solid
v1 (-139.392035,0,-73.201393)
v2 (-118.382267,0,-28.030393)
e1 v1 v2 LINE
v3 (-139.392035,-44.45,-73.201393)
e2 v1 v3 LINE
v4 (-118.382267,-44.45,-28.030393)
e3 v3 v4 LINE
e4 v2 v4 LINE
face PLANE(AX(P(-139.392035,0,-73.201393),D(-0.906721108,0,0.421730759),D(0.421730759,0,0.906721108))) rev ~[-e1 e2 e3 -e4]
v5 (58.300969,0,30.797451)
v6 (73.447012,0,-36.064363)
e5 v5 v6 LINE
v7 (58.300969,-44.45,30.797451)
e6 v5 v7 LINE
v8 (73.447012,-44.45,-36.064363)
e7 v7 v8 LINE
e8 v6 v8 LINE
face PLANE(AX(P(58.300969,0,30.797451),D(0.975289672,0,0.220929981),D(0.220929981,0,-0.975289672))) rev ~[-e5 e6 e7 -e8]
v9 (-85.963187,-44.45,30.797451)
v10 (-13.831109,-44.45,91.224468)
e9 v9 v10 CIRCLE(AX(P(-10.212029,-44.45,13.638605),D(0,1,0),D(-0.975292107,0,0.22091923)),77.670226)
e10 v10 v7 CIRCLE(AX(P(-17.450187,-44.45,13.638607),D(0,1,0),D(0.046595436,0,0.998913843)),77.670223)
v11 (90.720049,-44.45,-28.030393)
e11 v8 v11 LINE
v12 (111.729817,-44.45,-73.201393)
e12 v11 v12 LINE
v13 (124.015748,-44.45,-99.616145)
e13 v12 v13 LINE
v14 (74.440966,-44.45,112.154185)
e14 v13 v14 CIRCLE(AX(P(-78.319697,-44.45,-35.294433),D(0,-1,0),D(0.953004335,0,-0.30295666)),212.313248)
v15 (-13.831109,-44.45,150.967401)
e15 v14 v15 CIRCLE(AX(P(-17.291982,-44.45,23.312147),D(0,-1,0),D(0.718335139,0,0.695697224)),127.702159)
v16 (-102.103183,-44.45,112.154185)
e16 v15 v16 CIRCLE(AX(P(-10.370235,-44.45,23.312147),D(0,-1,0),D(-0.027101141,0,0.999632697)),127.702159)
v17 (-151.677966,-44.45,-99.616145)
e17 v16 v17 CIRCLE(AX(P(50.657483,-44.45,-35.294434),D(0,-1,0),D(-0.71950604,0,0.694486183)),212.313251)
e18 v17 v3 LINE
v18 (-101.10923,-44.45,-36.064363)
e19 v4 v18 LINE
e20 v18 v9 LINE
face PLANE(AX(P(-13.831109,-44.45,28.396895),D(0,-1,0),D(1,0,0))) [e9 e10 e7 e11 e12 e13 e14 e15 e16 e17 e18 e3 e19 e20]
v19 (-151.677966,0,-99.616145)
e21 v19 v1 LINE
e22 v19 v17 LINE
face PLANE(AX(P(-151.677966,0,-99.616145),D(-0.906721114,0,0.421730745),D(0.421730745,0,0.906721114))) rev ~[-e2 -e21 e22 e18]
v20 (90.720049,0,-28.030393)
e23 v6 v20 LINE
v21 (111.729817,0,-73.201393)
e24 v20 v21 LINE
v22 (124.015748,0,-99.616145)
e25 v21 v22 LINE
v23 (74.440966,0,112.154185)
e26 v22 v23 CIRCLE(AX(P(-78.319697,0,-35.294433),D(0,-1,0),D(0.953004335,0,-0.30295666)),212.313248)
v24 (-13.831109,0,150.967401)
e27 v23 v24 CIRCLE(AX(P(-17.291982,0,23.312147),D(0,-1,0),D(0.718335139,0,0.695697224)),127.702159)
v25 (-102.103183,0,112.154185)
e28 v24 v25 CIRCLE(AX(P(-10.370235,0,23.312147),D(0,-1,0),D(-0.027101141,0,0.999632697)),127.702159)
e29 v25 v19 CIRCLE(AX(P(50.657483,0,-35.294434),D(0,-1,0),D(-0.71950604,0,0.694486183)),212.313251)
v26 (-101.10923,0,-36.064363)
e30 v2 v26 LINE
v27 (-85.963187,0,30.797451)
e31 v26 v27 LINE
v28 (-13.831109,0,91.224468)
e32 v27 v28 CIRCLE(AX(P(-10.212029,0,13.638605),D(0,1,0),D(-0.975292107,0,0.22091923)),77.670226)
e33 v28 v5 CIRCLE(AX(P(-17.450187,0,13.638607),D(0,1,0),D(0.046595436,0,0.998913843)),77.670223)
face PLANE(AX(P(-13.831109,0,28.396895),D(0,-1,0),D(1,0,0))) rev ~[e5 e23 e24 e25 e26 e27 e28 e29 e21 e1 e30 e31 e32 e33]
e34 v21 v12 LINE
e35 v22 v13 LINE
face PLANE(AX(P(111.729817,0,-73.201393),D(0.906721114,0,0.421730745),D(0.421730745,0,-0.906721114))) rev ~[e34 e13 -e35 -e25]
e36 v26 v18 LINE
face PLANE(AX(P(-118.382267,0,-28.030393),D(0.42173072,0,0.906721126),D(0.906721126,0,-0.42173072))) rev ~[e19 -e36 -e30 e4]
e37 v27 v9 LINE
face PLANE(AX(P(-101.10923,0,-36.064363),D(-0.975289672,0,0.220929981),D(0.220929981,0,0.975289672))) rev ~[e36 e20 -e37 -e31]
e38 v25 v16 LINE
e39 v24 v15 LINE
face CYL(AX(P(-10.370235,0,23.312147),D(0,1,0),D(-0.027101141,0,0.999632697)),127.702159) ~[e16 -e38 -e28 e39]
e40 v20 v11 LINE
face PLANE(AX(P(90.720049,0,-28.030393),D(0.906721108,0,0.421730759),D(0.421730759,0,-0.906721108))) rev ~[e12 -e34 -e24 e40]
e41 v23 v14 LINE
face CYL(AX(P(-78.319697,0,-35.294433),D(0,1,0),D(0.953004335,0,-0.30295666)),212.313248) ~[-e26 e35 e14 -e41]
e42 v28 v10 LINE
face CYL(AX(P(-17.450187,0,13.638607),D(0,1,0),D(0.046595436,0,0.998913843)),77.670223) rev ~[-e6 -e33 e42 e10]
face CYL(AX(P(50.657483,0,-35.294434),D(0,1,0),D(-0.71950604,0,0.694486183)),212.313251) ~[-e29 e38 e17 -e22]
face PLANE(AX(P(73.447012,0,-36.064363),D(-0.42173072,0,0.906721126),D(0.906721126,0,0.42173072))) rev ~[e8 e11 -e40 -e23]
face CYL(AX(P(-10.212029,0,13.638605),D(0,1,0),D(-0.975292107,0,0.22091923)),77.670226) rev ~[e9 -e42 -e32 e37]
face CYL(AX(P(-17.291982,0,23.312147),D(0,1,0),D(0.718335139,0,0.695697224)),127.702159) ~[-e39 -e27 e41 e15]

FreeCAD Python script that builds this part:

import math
import FreeCAD as App
import Part
import Sketcher
from FreeCAD import Vector
Q = App.Units.Quantity

doc = App.newDocument("Part")
body = doc.addObject("PartDesign::Body", "Body")

# Sketch on XZ plane
sketch1 = doc.addObject("Sketcher::SketchObject", "Sketch")
body.addObject(sketch1)
sketch1.AttachmentSupport = (doc.XZ_Plane, [""])
sketch1.MapMode = "FlatFace"
sketch1.addGeometry([
    Part.LineSegment(Vector(-151.677966, -99.616145, 0), Vector(-139.392035, -73.201393, 0)),  # 0
    Part.LineSegment(Vector(-139.392035, -73.201393, 0), Vector(-118.382267, -28.030393, 0)),  # 1
    Part.LineSegment(Vector(-118.382267, -28.030393, 0), Vector(-101.10923, -36.064363, 0)),  # 2
    Part.LineSegment(Vector(-101.10923, -36.064363, 0), Vector(-85.963187, 30.797451, 0)),  # 3
    Part.ArcOfCircle(Part.Circle(Vector(-10.212029, 13.638605, 0), Vector(0, 0, 1), 77.670226), math.radians(92.67069), math.radians(167.23697)),  # 4
    Part.ArcOfCircle(Part.Circle(Vector(-17.450187, 13.638607, 0), Vector(0, 0, 1), 77.670223), math.radians(12.763028), math.radians(87.329311)),  # 5
    Part.LineSegment(Vector(58.300969, 30.797451, 0), Vector(73.447012, -36.064363, 0)),  # 6
    Part.LineSegment(Vector(73.447012, -36.064363, 0), Vector(90.720049, -28.030393, 0)),  # 7
    Part.LineSegment(Vector(90.720049, -28.030393, 0), Vector(111.729817, -73.201393, 0)),  # 8
    Part.LineSegment(Vector(111.729817, -73.201393, 0), Vector(124.015748, -99.616145, 0)),  # 9
    Part.ArcOfCircle(Part.Circle(Vector(-78.319697, -35.294433, 0), Vector(0, 0, 1), 212.313248), math.radians(-17.635274), math.radians(43.986287)),  # 10
    Part.ArcOfCircle(Part.Circle(Vector(-17.291982, 23.312147, 0), Vector(0, 0, 1), 127.702159), math.radians(44.082803), math.radians(88.447029)),  # 11
    Part.ArcOfCircle(Part.Circle(Vector(-10.370235, 23.312147, 0), Vector(0, 0, 1), 127.702159), math.radians(91.552971), math.radians(135.917197)),  # 12
    Part.ArcOfCircle(Part.Circle(Vector(50.657483, -35.294434, 0), Vector(0, 0, 1), 212.313251), math.radians(136.013713), math.radians(197.635273)),  # 13
], False)
sketch1.addConstraint([
    Sketcher.Constraint("Coincident", 0, 2, 1, 1),
    Sketcher.Constraint("Coincident", 1, 2, 2, 1),
    Sketcher.Constraint("Coincident", 2, 2, 3, 1),
    Sketcher.Constraint("Coincident", 3, 2, 4, 2),
    Sketcher.Constraint("Coincident", 4, 1, 5, 2),
    Sketcher.Constraint("Coincident", 5, 1, 6, 1),
    Sketcher.Constraint("Coincident", 6, 2, 7, 1),
    Sketcher.Constraint("Coincident", 7, 2, 8, 1),
    Sketcher.Constraint("Coincident", 8, 2, 9, 1),
    Sketcher.Constraint("Coincident", 9, 2, 10, 1),
    Sketcher.Constraint("Coincident", 10, 2, 11, 1),
    Sketcher.Constraint("Coincident", 11, 2, 12, 1),
    Sketcher.Constraint("Coincident", 12, 2, 13, 1),
    Sketcher.Constraint("Coincident", 13, 2, 0, 1),
    Sketcher.Constraint("Equal", 11, 12),
    Sketcher.Constraint("Parallel", 0, 1),
    Sketcher.Constraint("Perpendicular", 1, 2),
    Sketcher.Constraint("Perpendicular", 7, 8),
    Sketcher.Constraint("Parallel", 8, 9),
    Sketcher.Constraint("Horizontal", 11, 3, 12, 3),
    Sketcher.Constraint("Horizontal", 10, 3, 13, 3),
    Sketcher.Constraint("Horizontal", 3, 2, 5, 1),
    Sketcher.Constraint("Horizontal", 2, 2, 6, 2),
    Sketcher.Constraint("Horizontal", 1, 2, 7, 2),
    Sketcher.Constraint("Horizontal", 0, 2, 8, 2),
    Sketcher.Constraint("Horizontal", 10, 2, 12, 2),
    Sketcher.Constraint("Horizontal", 9, 2, 13, 2),
    Sketcher.Constraint("Vertical", 4, 1, 11, 2),
    Sketcher.Constraint("Equal", 3, 6),
    Sketcher.Constraint("Equal", 2, 7),
    Sketcher.Constraint("Distance", 2, Q("0.75 in")),
    Sketcher.Constraint("Radius", 11, Q("127.702159 mm")),
    Sketcher.Constraint("Radius", 13, Q("212.313251 mm")),
    Sketcher.Constraint("Radius", 4, Q("77.670226 mm")),
    Sketcher.Constraint("Radius", 5, Q("77.670223 mm")),
    Sketcher.Constraint("Radius", 10, Q("212.313248 mm")),
    Sketcher.Constraint("DistanceY", 0, 2, 10, 3, Q("1.4924 in")),
    Sketcher.Constraint("DistanceY", -1, 1, 11, 2, Q("150.967401 mm")),
    Sketcher.Constraint("DistanceY", 0, 2, 5, 3, Q("86.84 mm")),
    Sketcher.Constraint("DistanceX", 0, 2, 12, 3, Q("129.0218 mm")),
    Sketcher.Constraint("DistanceY", 0, 2, 1, 2, Q("45.171 mm")),
    Sketcher.Constraint("DistanceX", 3, 2, 5, 3, Q("68.513 mm")),
    Sketcher.Constraint("DistanceX", 5, 3, 6, 2, Q("90.897199 mm")),
    Sketcher.Constraint("DistanceX", 7, 2, 9, 2, Q("33.295699 mm")),
    Sketcher.Constraint("DistanceX", 12, 3, 10, 2, Q("84.811201 mm")),
    Sketcher.Constraint("Distance", 0, Q("29.132168 mm")),
    Sketcher.Constraint("Distance", 3, Q("68.555852 mm")),
    Sketcher.Constraint("DistanceX", 4, 3, -1, 1, Q("10.212029 mm")),
])
pad1 = doc.addObject("PartDesign::Pad", "Pad")
body.addObject(pad1)
pad1.Profile = sketch1
pad1.Length = Q("1.75 in")

doc.recompute()
